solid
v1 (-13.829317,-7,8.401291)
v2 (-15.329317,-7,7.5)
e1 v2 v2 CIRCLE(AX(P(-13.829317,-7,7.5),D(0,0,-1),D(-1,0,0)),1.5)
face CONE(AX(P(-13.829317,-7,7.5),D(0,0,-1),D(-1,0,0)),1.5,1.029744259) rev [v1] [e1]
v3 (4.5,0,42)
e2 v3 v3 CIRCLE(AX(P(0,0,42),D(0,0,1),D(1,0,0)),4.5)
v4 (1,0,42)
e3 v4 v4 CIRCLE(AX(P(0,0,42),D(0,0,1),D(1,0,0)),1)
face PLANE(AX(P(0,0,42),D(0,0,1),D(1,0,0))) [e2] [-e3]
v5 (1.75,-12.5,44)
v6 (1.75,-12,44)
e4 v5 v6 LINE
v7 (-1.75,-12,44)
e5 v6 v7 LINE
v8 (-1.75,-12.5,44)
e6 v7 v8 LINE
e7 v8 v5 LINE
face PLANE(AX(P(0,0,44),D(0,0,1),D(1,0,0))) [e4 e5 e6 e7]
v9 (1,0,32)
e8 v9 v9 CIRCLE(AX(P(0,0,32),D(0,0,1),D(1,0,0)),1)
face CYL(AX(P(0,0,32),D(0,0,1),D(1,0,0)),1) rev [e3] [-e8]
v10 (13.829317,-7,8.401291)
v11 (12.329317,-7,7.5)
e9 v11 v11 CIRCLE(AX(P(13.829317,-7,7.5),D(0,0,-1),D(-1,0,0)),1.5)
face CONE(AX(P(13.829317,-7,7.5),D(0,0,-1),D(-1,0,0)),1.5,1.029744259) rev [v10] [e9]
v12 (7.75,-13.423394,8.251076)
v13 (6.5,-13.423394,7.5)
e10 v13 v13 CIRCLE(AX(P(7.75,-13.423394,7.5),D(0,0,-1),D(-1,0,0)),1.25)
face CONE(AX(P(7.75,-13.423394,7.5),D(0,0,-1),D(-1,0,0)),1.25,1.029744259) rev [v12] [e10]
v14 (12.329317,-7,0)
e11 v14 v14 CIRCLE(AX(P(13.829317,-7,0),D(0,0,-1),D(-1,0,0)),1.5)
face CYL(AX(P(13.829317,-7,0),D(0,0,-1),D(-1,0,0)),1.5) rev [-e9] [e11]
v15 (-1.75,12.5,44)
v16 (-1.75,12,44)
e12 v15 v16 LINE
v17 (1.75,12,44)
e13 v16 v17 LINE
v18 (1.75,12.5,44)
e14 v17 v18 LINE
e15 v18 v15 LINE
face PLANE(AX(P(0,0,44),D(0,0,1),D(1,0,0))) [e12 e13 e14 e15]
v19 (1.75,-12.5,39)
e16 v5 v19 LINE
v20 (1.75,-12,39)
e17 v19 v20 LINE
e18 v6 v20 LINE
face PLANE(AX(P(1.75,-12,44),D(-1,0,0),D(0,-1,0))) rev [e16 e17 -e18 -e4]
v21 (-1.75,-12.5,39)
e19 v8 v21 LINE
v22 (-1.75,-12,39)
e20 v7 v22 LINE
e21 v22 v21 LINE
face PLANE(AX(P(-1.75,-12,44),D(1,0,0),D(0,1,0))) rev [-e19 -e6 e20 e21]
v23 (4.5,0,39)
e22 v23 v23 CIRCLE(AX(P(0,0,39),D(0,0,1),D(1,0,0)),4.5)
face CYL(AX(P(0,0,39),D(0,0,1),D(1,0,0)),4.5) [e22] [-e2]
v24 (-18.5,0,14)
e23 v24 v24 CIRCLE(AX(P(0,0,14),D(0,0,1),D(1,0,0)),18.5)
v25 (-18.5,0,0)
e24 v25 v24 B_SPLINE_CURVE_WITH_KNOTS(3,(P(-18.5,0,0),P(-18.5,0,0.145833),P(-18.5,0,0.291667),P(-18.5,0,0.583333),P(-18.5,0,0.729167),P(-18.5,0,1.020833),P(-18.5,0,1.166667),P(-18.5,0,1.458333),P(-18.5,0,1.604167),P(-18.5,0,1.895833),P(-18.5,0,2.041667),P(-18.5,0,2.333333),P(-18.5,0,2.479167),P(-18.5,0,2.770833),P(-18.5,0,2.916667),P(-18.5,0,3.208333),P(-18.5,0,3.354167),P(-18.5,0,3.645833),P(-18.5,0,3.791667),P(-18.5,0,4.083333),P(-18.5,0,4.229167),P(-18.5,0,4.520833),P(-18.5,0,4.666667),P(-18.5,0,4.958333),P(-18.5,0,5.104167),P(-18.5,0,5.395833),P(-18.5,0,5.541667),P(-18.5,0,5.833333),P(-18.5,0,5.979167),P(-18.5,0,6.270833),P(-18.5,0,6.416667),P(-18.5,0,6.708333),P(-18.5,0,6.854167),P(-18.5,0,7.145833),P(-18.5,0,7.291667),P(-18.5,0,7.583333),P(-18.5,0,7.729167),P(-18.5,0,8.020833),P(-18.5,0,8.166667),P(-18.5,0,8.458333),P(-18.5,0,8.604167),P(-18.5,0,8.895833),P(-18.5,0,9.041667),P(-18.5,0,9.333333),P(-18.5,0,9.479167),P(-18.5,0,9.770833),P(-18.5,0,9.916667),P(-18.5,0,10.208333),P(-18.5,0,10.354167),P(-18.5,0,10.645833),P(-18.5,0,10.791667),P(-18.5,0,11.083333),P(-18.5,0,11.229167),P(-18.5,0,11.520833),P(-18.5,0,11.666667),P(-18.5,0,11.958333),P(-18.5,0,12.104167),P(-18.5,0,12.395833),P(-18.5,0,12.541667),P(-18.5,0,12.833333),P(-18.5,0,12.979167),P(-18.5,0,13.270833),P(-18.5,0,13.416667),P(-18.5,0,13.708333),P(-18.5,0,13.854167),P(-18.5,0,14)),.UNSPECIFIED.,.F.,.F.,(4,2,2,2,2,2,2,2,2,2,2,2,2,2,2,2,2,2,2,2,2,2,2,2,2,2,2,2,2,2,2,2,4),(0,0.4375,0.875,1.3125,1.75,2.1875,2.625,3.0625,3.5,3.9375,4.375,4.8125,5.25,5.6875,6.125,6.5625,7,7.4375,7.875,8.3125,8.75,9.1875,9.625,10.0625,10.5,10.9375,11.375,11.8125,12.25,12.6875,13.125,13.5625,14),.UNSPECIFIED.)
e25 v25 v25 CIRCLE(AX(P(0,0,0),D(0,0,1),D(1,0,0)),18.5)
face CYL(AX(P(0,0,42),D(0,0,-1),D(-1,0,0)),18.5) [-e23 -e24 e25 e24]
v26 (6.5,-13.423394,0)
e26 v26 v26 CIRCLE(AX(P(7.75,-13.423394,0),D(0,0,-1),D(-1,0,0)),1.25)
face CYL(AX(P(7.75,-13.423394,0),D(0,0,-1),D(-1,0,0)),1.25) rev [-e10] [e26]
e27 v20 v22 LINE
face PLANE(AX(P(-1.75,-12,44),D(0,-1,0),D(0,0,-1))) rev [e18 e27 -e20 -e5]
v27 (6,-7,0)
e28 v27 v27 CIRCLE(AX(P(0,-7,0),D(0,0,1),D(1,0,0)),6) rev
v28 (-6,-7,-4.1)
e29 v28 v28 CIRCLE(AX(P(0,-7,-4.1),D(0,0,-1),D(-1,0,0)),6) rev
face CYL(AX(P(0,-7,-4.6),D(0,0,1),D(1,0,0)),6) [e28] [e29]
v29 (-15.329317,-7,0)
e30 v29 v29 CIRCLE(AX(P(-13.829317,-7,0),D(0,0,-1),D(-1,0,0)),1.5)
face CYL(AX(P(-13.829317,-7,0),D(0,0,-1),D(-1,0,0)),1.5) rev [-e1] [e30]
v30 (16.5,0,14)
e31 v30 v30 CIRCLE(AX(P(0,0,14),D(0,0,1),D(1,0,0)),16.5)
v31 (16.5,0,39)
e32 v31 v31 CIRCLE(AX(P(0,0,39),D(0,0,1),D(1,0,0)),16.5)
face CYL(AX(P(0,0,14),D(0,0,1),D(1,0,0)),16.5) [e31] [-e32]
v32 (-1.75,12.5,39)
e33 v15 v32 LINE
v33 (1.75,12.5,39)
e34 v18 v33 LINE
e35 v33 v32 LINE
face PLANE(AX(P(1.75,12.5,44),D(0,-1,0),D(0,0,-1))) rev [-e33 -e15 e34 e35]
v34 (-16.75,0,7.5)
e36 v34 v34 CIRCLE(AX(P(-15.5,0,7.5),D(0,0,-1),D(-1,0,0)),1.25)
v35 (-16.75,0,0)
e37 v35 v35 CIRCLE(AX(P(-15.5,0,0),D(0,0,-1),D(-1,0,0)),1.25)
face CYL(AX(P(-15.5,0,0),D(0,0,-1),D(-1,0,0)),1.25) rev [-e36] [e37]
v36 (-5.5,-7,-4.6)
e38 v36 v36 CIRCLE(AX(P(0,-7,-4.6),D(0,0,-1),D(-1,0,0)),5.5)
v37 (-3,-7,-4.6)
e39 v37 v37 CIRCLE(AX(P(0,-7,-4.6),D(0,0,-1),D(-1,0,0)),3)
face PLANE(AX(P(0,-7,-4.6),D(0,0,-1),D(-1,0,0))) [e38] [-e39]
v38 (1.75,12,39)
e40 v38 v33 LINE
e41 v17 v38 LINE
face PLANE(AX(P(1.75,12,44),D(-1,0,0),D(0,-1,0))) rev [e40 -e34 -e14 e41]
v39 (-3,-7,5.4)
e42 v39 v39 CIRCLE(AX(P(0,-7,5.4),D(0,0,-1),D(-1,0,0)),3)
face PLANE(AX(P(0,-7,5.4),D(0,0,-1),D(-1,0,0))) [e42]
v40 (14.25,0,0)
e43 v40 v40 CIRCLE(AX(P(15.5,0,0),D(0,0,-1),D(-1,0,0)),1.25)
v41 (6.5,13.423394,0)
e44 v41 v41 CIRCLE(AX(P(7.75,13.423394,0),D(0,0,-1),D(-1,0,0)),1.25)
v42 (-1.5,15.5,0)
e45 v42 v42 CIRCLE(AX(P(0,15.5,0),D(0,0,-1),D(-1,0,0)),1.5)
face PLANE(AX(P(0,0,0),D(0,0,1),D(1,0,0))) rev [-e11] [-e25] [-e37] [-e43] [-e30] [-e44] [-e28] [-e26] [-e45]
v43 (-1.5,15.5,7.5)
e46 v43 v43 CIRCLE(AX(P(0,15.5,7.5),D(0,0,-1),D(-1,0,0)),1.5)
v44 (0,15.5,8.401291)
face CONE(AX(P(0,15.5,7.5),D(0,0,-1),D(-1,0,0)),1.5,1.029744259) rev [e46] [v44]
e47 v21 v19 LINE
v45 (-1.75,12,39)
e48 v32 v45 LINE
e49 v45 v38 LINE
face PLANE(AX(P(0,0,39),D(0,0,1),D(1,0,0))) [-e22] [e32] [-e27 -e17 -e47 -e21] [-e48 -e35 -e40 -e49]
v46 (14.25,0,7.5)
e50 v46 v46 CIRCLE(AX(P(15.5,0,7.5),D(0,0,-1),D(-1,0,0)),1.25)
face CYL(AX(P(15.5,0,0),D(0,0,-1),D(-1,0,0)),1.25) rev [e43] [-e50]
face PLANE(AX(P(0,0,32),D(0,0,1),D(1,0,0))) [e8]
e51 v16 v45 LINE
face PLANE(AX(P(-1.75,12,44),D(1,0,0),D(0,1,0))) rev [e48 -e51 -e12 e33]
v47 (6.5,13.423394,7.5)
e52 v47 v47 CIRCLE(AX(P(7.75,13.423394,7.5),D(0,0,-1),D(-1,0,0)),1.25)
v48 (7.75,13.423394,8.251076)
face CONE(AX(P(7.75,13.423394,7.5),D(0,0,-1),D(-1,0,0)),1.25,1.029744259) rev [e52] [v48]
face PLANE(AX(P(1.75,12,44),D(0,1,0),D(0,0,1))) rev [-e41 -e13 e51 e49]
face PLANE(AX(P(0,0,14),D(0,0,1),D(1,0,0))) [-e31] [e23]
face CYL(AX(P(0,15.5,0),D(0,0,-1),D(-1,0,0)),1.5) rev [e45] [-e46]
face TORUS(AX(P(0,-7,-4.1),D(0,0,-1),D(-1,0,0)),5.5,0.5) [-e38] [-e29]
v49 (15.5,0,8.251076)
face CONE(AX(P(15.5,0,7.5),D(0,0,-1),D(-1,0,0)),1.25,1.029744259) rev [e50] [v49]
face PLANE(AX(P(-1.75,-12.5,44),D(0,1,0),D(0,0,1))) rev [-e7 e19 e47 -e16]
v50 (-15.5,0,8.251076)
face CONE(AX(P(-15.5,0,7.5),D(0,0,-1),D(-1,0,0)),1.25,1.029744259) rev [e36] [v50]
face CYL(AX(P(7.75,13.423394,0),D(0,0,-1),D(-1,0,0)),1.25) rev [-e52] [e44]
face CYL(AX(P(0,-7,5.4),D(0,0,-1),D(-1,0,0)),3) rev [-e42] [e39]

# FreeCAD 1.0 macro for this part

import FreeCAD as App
import Part
import Sketcher

V = App.Vector


def edges_at(feature, points):
    """Names of the edges that pass closest to the given points."""
    edges = feature.Shape.Edges
    near = lambda p: min(range(len(edges)), key=lambda i: edges[i].distToShape(Part.Vertex(*p))[0])
    return sorted({f"Edge{near(p) + 1}" for p in points})


def add_polygon(sketch, points):
    """Adds a closed chain of lines whose ends are joined by coincident constraints."""
    first, n = sketch.GeometryCount, len(points)
    for a, b in zip(points, points[1:] + points[:1]):
        sketch.addGeometry(Part.LineSegment(App.Vector(*a, 0), App.Vector(*b, 0)), False)
    for i in range(n):
        sketch.addConstraint(Sketcher.Constraint("Coincident", first + i, 2, first + (i + 1) % n, 1))

doc = App.newDocument("Part")
body = doc.addObject("PartDesign::Body", "Body")

# Sketch on XY plane
sketch1 = doc.addObject("Sketcher::SketchObject", "Sketch")
body.addObject(sketch1)
sketch1.AttachmentSupport = (doc.XY_Plane, [""])
sketch1.MapMode = "FlatFace"
sketch1.addGeometry(Part.Circle(V(0, 0, 0), V(0, 0, 1), 18), False)
sketch1.addConstraint([
    Sketcher.Constraint("Coincident", 0, 3, -1, 1),
    Sketcher.Constraint("Diameter", 0, 37.0),
])
pad1 = doc.addObject("PartDesign::Pad", "Pad")
body.addObject(pad1)
pad1.Profile = sketch1
pad1.Length = 42

# Sketch on XY plane
sketch2 = doc.addObject("Sketcher::SketchObject", "Sketch001")
body.addObject(sketch2)
sketch2.AttachmentSupport = (doc.XY_Plane, [""])
sketch2.MapMode = "FlatFace"
sketch2.AttachmentOffset = App.Placement(V(0, 0, 39), App.Rotation())
sketch2.addGeometry([
    Part.Circle(V(0, 0, 0), V(0, 0, 1), 18.5),
    Part.Circle(V(0, 0, 0), V(0, 0, 1), 4.5),
], False)
sketch2.addConstraint([
    Sketcher.Constraint("Coincident", 0, 3, -1, 1),
    Sketcher.Constraint("Coincident", 1, 3, -1, 1),
    Sketcher.Constraint("Diameter", 0, 37.0),
    Sketcher.Constraint("Diameter", 1, 9.0),
])
pocket1 = doc.addObject("PartDesign::Pocket", "Pocket")
body.addObject(pocket1)
pocket1.Profile = sketch2
pocket1.Length = 3
pocket1.Reversed = True

# Sketch on XY plane
sketch3 = doc.addObject("Sketcher::SketchObject", "Sketch002")
body.addObject(sketch3)
sketch3.AttachmentSupport = (doc.XY_Plane, [""])
sketch3.MapMode = "FlatFace"
sketch3.AttachmentOffset = App.Placement(V(0, 0, 14), App.Rotation())
sketch3.addGeometry([
    Part.Circle(V(0, 0, 0), V(0, 0, 1), 18),
    Part.Circle(V(0, 0, 0), V(0, 0, 1), 16),
], False)
sketch3.addConstraint([
    Sketcher.Constraint("Coincident", 0, 3, -1, 1),
    Sketcher.Constraint("Coincident", 1, 3, -1, 1),
    Sketcher.Constraint("Diameter", 0, 37.0),
    Sketcher.Constraint("Diameter", 1, 33.0),
])
pocket2 = doc.addObject("PartDesign::Pocket", "Pocket001")
body.addObject(pocket2)
pocket2.Profile = sketch3
pocket2.Length = 25
pocket2.Reversed = True

# Sketch on XY plane
sketch4 = doc.addObject("Sketcher::SketchObject", "Sketch003")
body.addObject(sketch4)
sketch4.AttachmentSupport = (doc.XY_Plane, [""])
sketch4.MapMode = "FlatFace"
sketch4.addGeometry(Part.Circle(V(0, -7, 0), V(0, 0, 1), 6), False)
sketch4.addConstraint([
    Sketcher.Constraint("PointOnObject", 0, 3, -2),
    Sketcher.Constraint("Diameter", 0, 12.0),
    Sketcher.Constraint("DistanceY", 0, 3, -1, 1, 7.0),
])
pad2 = doc.addObject("PartDesign::Pad", "Pad001")
body.addObject(pad2)
pad2.Profile = sketch4
pad2.Length = 4.6
pad2.Reversed = True
doc.recompute()

fillet = doc.addObject("PartDesign::Fillet", "Fillet")
body.addObject(fillet)
fillet.Base = (pad2, edges_at(pad2, [(-6, -7, -4.6)]))
fillet.Radius = 0.5

# Sketch on XY plane
sketch5 = doc.addObject("Sketcher::SketchObject", "Sketch004")
body.addObject(sketch5)
sketch5.AttachmentSupport = (doc.XY_Plane, [""])
sketch5.MapMode = "FlatFace"
sketch5.AttachmentOffset = App.Placement(V(0, 0, -4.6), App.Rotation())
sketch5.addGeometry(Part.Circle(V(0, -7, 0), V(0, 0, 1), 3), False)
sketch5.addConstraint([
    Sketcher.Constraint("PointOnObject", 0, 3, -2),
    Sketcher.Constraint("Diameter", 0, 6.0),
    Sketcher.Constraint("DistanceY", 0, 3, -1, 1, 7.0),
])
pocket3 = doc.addObject("PartDesign::Pocket", "Pocket002")
body.addObject(pocket3)
pocket3.Profile = sketch5
pocket3.Length = 10
pocket3.Reversed = True

# Sketch on XY plane
sketch6 = doc.addObject("Sketcher::SketchObject", "Sketch005")
body.addObject(sketch6)
sketch6.AttachmentSupport = (doc.XY_Plane, [""])
sketch6.MapMode = "FlatFace"
sketch6.AttachmentOffset = App.Placement(V(0, 0, 42), App.Rotation())
sketch6.addGeometry(Part.Circle(V(0, 0, 0), V(0, 0, 1), 1), False)
sketch6.addConstraint([
    Sketcher.Constraint("Coincident", 0, 3, -1, 1),
    Sketcher.Constraint("Diameter", 0, 2.0),
])
pocket4 = doc.addObject("PartDesign::Pocket", "Pocket003")
body.addObject(pocket4)
pocket4.Profile = sketch6
pocket4.Length = 10

# Sketch on XY plane
sketch7 = doc.addObject("Sketcher::SketchObject", "Sketch006")
body.addObject(sketch7)
sketch7.AttachmentSupport = (doc.XY_Plane, [""])
sketch7.MapMode = "FlatFace"
sketch7.AttachmentOffset = App.Placement(V(0, 0, 39), App.Rotation())
add_polygon(sketch7, [(-1.8, 12.5), (-1.8, 12), (1.8, 12), (1.8, 12.5)])  # lines 0-3
add_polygon(sketch7, [(-1.8, -12), (-1.8, -12.5), (1.8, -12.5), (1.8, -12)])  # lines 4-7
sketch7.addConstraint([
    Sketcher.Constraint("Vertical", 0),
    Sketcher.Constraint("Horizontal", 1),
    Sketcher.Constraint("Vertical", 2),
    Sketcher.Constraint("Horizontal", 3),
    Sketcher.Constraint("Vertical", 4),
    Sketcher.Constraint("Horizontal", 5),
    Sketcher.Constraint("Vertical", 6),
    Sketcher.Constraint("Horizontal", 7),
    Sketcher.Constraint("Symmetric", 2, 2, 4, 2, -1, 1),
    Sketcher.Constraint("Symmetric", 0, 2, 6, 2, -1, 1),
    Sketcher.Constraint("Vertical", 3, 2, 4, 2),
    Sketcher.Constraint("DistanceX", 1, 1, 1, 2, 3.5),
    Sketcher.Constraint("DistanceY", 0, 2, 0, 1, 0.5),
    Sketcher.Constraint("DistanceY", -1, 1, 0, 2, 12.0),
])
pad3 = doc.addObject("PartDesign::Pad", "Pad002")
body.addObject(pad3)
pad3.Profile = sketch7
pad3.Length = 5

# Sketch on XY plane
sketch8 = doc.addObject("Sketcher::SketchObject", "Sketch007")
body.addObject(sketch8)
sketch8.AttachmentSupport = (doc.XY_Plane, [""])
sketch8.MapMode = "FlatFace"
sketch8.addGeometry([
    Part.Circle(V(-15.5, 0, 0), V(0, 0, 1), 1.2),
    Part.Circle(V(7.8, 13.4, 0), V(0, 0, 1), 1.2),
    Part.Circle(V(7.8, -13.4, 0), V(0, 0, 1), 1.2),
    Part.Circle(V(15.5, 0, 0), V(0, 0, 1), 1.2),
], False)
sketch8.addConstraint([
    Sketcher.Constraint("Equal", 0, 1),
    Sketcher.Constraint("Equal", 1, 2),
    Sketcher.Constraint("Equal", 2, 3),
    Sketcher.Constraint("Symmetric", 0, 3, 3, 3, -1, 1),
    Sketcher.Constraint("Symmetric", 1, 3, 2, 3, -1),
    Sketcher.Constraint("PointOnObject", 0, 3, -1),
    Sketcher.Constraint("Diameter", 0, 2.5),
    Sketcher.Constraint("DistanceX", 0, 3, 3, 3, 31.0),
    Sketcher.Constraint("DistanceX", -1, 1, 1, 3, 7.75),
    Sketcher.Constraint("DistanceY", -1, 1, 1, 3, 13.423394),
])
doc.recompute()
hole = doc.addObject("PartDesign::Hole", "Hole")
body.addObject(hole)
hole.Profile = sketch8
hole.ThreadType = "None"
hole.Diameter = 2.5
hole.DepthType = "Dimension"
hole.Depth = 7.5
hole.DrillPoint = "Angled"
hole.DrillPointAngle = 118
hole.Reversed = True

# Sketch on XY plane
sketch9 = doc.addObject("Sketcher::SketchObject", "Sketch008")
body.addObject(sketch9)
sketch9.AttachmentSupport = (doc.XY_Plane, [""])
sketch9.MapMode = "FlatFace"
sketch9.addGeometry([
    Part.Circle(V(0, 15.5, 0), V(0, 0, 1), 1.5),
    Part.Circle(V(13.8, -7, 0), V(0, 0, 1), 1.5),
    Part.Circle(V(-13.8, -7, 0), V(0, 0, 1), 1.5),
], False)
sketch9.addConstraint([
    Sketcher.Constraint("Equal", 0, 1),
    Sketcher.Constraint("Equal", 1, 2),
    Sketcher.Constraint("Symmetric", 1, 3, 2, 3, -2),
    Sketcher.Constraint("PointOnObject", 0, 3, -2),
    Sketcher.Constraint("Diameter", 0, 3.0),
    Sketcher.Constraint("DistanceY", 1, 3, -1, 1, 7.0),
    Sketcher.Constraint("DistanceY", -1, 1, 0, 3, 15.5),
    Sketcher.Constraint("DistanceX", -1, 1, 1, 3, 13.829317),
])
doc.recompute()
hole2 = doc.addObject("PartDesign::Hole", "Hole001")
body.addObject(hole2)
hole2.Profile = sketch9
hole2.ThreadType = "None"
hole2.Diameter = 3
hole2.DepthType = "Dimension"
hole2.Depth = 7.5
hole2.DrillPoint = "Angled"
hole2.DrillPointAngle = 118
hole2.Reversed = True

doc.recompute()
